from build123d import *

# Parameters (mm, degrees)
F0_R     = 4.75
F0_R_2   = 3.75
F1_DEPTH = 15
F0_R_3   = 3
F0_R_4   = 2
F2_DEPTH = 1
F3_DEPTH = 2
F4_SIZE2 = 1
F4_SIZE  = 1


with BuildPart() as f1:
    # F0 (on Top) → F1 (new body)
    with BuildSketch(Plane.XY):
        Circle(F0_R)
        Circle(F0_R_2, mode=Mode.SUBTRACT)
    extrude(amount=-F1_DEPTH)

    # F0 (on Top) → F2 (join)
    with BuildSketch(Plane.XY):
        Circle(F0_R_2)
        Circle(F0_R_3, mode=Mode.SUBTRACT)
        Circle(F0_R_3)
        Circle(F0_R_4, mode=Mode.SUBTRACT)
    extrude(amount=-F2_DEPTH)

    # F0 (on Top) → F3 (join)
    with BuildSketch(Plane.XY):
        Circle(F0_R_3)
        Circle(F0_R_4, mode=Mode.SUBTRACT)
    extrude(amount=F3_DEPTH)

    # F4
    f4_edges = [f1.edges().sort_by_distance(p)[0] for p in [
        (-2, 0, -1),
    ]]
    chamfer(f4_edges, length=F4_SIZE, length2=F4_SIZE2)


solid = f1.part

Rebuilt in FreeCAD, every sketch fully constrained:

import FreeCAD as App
import Part
import Sketcher
from FreeCAD import Vector
Q = App.Units.Quantity


def edges_at(feature, points):
    """Names of the edges that pass closest to the given points."""
    edges = feature.Shape.Edges
    near = lambda p: min(range(len(edges)), key=lambda i: edges[i].distToShape(Part.Vertex(*p))[0])
    return sorted({f"Edge{near(p) + 1}" for p in points})

doc = App.newDocument("Part")
body = doc.addObject("PartDesign::Body", "Body")

sketch1 = doc.addObject("Sketcher::SketchObject", "Sketch")
body.addObject(sketch1)
sketch1.AttachmentSupport = (doc.XY_Plane, [""])
sketch1.MapMode = "FlatFace"
sketch1.addGeometry([
    Part.Circle(Vector(0, 0, 0), Vector(0, 0, 1), 4.75),
    Part.Circle(Vector(0, 0, 0), Vector(0, 0, 1), 3.75),
], False)
sketch1.addConstraint([
    Sketcher.Constraint("Coincident", 0, 3, -1, 1),
    Sketcher.Constraint("Coincident", 1, 3, -1, 1),
    Sketcher.Constraint("Diameter", 0, Q("9.5 mm")),
    Sketcher.Constraint("Diameter", 1, Q("7.5 mm")),
])
pad1 = doc.addObject("PartDesign::Pad", "Pad")
body.addObject(pad1)
pad1.Profile = sketch1
pad1.Length = 15
pad1.Reversed = True

sketch2 = doc.addObject("Sketcher::SketchObject", "Sketch001")
body.addObject(sketch2)
sketch2.AttachmentSupport = (doc.XY_Plane, [""])
sketch2.MapMode = "FlatFace"
sketch2.addGeometry([
    Part.Circle(Vector(0, 0, 0), Vector(0, 0, 1), 3.75),
    Part.Circle(Vector(0, 0, 0), Vector(0, 0, 1), 2),
], False)
sketch2.addConstraint([
    Sketcher.Constraint("Coincident", 0, 3, -1, 1),
    Sketcher.Constraint("Coincident", 1, 3, -1, 1),
    Sketcher.Constraint("Diameter", 1, Q("4 mm")),
    Sketcher.Constraint("Diameter", 0, Q("7.5 mm")),
])
pad2 = doc.addObject("PartDesign::Pad", "Pad001")
body.addObject(pad2)
pad2.Profile = sketch2
pad2.Length = 1
pad2.Reversed = True

sketch3 = doc.addObject("Sketcher::SketchObject", "Sketch002")
body.addObject(sketch3)
sketch3.AttachmentSupport = (doc.XY_Plane, [""])
sketch3.MapMode = "FlatFace"
sketch3.addGeometry([
    Part.Circle(Vector(0, 0, 0), Vector(0, 0, 1), 3),
    Part.Circle(Vector(0, 0, 0), Vector(0, 0, 1), 2),
], False)
sketch3.addConstraint([
    Sketcher.Constraint("Coincident", 0, 3, -1, 1),
    Sketcher.Constraint("Coincident", 1, 3, -1, 1),
    Sketcher.Constraint("Diameter", 0, Q("6 mm")),
    Sketcher.Constraint("Diameter", 1, Q("4 mm")),
])
pad3 = doc.addObject("PartDesign::Pad", "Pad002")
body.addObject(pad3)
pad3.Profile = sketch3
pad3.Length = 2
doc.recompute()

chamfer = doc.addObject("PartDesign::Chamfer", "Chamfer")
body.addObject(chamfer)
chamfer.Base = (pad3, edges_at(pad3, [(-2, 0, -1)]))
chamfer.ChamferType = "Two distances"
chamfer.Size = 1
chamfer.Size2 = 1

doc.recompute()
